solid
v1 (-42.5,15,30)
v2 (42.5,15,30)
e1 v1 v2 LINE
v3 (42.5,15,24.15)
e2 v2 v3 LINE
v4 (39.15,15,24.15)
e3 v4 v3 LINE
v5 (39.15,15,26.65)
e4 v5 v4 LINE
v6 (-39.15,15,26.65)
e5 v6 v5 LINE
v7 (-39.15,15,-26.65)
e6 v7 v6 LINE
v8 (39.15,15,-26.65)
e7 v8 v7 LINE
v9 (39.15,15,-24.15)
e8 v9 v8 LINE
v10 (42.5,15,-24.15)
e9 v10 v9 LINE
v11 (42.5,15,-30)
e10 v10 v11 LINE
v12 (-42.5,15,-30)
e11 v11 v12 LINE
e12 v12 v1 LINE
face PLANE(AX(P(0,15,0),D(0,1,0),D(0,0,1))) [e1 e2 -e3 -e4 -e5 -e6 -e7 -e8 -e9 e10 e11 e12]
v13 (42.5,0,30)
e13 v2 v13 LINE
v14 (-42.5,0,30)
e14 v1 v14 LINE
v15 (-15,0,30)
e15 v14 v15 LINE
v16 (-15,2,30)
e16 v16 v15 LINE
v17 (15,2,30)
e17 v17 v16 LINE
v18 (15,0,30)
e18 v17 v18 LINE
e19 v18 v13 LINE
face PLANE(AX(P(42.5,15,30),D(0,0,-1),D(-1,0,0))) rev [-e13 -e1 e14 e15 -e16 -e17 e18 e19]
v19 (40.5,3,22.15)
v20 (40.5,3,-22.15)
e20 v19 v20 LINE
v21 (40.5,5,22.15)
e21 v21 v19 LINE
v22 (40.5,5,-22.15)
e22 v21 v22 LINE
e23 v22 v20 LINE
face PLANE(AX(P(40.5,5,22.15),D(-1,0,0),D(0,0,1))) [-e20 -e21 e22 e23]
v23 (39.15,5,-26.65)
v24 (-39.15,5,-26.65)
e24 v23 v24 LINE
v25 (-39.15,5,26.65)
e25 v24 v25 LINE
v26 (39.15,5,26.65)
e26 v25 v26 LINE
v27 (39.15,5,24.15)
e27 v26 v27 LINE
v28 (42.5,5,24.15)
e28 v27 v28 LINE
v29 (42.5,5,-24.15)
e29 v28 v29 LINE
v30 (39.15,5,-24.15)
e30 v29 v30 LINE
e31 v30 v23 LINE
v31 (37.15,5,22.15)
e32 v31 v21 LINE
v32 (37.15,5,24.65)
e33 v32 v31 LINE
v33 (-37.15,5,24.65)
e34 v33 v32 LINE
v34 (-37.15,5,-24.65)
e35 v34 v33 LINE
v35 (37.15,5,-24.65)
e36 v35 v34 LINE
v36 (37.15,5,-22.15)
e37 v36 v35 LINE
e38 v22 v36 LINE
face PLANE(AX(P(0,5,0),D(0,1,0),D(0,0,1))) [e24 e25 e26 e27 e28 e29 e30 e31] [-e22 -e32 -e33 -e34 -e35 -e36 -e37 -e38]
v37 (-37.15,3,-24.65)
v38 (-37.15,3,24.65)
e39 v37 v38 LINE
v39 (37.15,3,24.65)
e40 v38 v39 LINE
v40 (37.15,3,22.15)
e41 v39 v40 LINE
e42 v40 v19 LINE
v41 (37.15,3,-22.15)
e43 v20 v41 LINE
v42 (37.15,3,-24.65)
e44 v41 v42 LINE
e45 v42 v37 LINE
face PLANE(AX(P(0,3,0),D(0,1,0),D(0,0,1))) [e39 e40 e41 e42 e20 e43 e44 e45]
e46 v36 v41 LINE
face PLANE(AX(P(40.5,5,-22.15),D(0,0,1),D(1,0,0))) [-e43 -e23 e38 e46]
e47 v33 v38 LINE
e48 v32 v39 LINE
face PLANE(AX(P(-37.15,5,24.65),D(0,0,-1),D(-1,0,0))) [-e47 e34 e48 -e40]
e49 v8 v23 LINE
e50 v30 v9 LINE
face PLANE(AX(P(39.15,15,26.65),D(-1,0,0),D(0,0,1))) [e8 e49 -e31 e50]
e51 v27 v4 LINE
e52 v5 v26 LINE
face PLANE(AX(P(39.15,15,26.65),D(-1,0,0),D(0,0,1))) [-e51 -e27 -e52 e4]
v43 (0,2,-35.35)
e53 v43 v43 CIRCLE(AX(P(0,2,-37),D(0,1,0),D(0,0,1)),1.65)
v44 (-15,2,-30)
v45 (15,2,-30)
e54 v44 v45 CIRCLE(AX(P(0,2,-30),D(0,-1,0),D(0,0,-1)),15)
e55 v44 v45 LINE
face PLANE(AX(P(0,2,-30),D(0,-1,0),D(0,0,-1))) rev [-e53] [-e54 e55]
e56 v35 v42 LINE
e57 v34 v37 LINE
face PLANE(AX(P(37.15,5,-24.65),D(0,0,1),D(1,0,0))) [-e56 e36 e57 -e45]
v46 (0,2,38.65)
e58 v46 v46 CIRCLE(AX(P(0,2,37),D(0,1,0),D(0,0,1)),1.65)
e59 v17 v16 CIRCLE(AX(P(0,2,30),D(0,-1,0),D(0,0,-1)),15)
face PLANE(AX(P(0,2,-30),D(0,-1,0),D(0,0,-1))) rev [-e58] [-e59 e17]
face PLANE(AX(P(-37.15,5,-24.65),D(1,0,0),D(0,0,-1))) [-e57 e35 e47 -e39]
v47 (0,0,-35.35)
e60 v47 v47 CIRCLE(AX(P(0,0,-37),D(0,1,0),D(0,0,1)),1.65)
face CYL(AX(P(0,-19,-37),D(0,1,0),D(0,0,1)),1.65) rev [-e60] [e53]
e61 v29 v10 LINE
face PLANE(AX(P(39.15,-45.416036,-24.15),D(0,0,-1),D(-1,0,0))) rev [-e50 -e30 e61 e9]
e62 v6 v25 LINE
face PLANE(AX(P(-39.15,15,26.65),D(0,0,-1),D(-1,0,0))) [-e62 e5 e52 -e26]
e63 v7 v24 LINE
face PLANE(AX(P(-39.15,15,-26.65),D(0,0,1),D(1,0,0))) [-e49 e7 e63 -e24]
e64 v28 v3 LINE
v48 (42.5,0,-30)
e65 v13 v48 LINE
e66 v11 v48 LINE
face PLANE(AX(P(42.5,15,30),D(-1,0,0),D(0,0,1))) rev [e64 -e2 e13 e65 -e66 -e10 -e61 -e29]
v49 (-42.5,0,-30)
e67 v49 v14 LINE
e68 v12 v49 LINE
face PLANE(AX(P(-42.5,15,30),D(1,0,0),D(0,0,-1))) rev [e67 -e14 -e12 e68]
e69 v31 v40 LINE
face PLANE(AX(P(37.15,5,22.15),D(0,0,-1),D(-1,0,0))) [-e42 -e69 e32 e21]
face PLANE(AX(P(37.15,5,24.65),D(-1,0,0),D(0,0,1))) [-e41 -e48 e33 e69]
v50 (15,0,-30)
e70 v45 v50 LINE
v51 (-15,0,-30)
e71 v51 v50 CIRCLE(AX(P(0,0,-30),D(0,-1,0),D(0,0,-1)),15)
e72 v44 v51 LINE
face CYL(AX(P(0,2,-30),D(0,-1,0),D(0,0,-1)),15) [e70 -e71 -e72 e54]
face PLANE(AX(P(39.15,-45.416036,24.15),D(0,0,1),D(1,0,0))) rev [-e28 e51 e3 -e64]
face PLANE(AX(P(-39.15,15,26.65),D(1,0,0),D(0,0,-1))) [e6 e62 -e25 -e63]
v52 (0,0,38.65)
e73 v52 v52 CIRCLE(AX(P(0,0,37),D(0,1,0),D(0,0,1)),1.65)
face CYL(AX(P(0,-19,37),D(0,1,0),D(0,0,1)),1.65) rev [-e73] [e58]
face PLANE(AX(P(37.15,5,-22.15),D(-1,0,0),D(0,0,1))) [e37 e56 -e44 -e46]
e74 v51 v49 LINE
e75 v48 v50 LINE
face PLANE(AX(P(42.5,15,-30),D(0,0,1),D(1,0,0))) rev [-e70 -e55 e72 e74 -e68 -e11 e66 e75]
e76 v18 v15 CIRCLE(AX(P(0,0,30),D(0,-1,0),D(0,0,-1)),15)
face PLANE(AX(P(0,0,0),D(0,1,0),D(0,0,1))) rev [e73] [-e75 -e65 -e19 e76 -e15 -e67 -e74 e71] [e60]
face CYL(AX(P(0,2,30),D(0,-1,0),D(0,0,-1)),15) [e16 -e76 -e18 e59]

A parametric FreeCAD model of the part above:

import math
import FreeCAD as App
import Part
import Sketcher


def faces_at(feature, points):
    """Names of the faces that lie closest to the given points."""
    faces = feature.Shape.Faces
    near = lambda p: min(range(len(faces)), key=lambda i: faces[i].distToShape(Part.Vertex(*p))[0])
    return sorted({f"Face{near(p) + 1}" for p in points})


def add_polygon(sketch, points):
    """Adds a closed chain of lines whose ends are joined by coincident constraints."""
    first, n = sketch.GeometryCount, len(points)
    for a, b in zip(points, points[1:] + points[:1]):
        sketch.addGeometry(Part.LineSegment(App.Vector(*a, 0), App.Vector(*b, 0)), False)
    for i in range(n):
        sketch.addConstraint(Sketcher.Constraint("Coincident", first + i, 2, first + (i + 1) % n, 1))

doc = App.newDocument("Part")
body = doc.addObject("PartDesign::Body", "Body")

# Sketch on XZ plane
sketch1 = doc.addObject("Sketcher::SketchObject", "Sketch")
body.addObject(sketch1)
sketch1.AttachmentSupport = (doc.XZ_Plane, [""])
sketch1.MapMode = "FlatFace"
add_polygon(sketch1, [(-42, -30), (-42, 30), (42, 30), (42, -30)])  # lines 0-3
sketch1.addConstraint(Sketcher.Constraint("Vertical", 0))
sketch1.addConstraint(Sketcher.Constraint("Horizontal", 1))
sketch1.addConstraint(Sketcher.Constraint("Vertical", 2))
sketch1.addConstraint(Sketcher.Constraint("Horizontal", 3))
sketch1.addConstraint(Sketcher.Constraint("Symmetric", 0, 2, 2, 2, -1, 1))
sketch1.addConstraint(Sketcher.Constraint("DistanceX", 1, 1, 1, 2, 85.0))
sketch1.addConstraint(Sketcher.Constraint("DistanceY", 0, 1, 0, 2, 60.0))
pad1 = doc.addObject("PartDesign::Pad", "Pad")
body.addObject(pad1)
pad1.Profile = sketch1
pad1.Length = 15
pad1.Reversed = True
doc.recompute()

thickness = doc.addObject("PartDesign::Thickness", "Thickness")
body.addObject(thickness)
thickness.Base = (pad1, faces_at(pad1, [(0, 15, 0)]))
thickness.Value = 3
thickness.Reversed = True
thickness.Join = "Intersection"

# Sketch on XZ plane
sketch2 = doc.addObject("Sketcher::SketchObject", "Sketch001")
body.addObject(sketch2)
sketch2.AttachmentSupport = (doc.XZ_Plane, [""])
sketch2.MapMode = "FlatFace"
sketch2.AttachmentOffset = App.Placement(App.Vector(0, 0, -3), App.Rotation())
add_polygon(sketch2, [(-40, -27), (-40, 27), (40, 27), (40, -27)])  # lines 0-3
add_polygon(sketch2, [(39, 27), (-39, 27), (-39, -27), (39, -27)])  # lines 4-7
sketch2.addConstraint(Sketcher.Constraint("Vertical", 0))
sketch2.addConstraint(Sketcher.Constraint("Horizontal", 1))
sketch2.addConstraint(Sketcher.Constraint("Vertical", 2))
sketch2.addConstraint(Sketcher.Constraint("Horizontal", 3))
sketch2.addConstraint(Sketcher.Constraint("Horizontal", 4))
sketch2.addConstraint(Sketcher.Constraint("Vertical", 5))
sketch2.addConstraint(Sketcher.Constraint("Horizontal", 6))
sketch2.addConstraint(Sketcher.Constraint("Vertical", 7))
sketch2.addConstraint(Sketcher.Constraint("Symmetric", 0, 2, 2, 2, -1, 1))
sketch2.addConstraint(Sketcher.Constraint("Symmetric", 4, 2, 6, 2, -1, 1))
sketch2.addConstraint(Sketcher.Constraint("DistanceX", 1, 1, 1, 2, 79.0))
sketch2.addConstraint(Sketcher.Constraint("DistanceY", 0, 1, 0, 2, 54.0))
sketch2.addConstraint(Sketcher.Constraint("DistanceX", 4, 2, 4, 1, 78.3))
sketch2.addConstraint(Sketcher.Constraint("DistanceY", 5, 2, 5, 1, 53.3))
pad2 = doc.addObject("PartDesign::Pad", "Pad001")
body.addObject(pad2)
pad2.Profile = sketch2
pad2.Length = 12
pad2.Reversed = True

# Sketch on XZ plane
sketch3 = doc.addObject("Sketcher::SketchObject", "Sketch002")
body.addObject(sketch3)
sketch3.AttachmentSupport = (doc.XZ_Plane, [""])
sketch3.MapMode = "FlatFace"
sketch3.AttachmentOffset = App.Placement(App.Vector(0, 0, -15), App.Rotation())
add_polygon(sketch3, [(39.1, -24.1), (39.1, 24.1), (42.5, 24.1), (42.5, -24.1)])  # lines 0-3
sketch3.addConstraint(Sketcher.Constraint("Vertical", 0))
sketch3.addConstraint(Sketcher.Constraint("Horizontal", 1))
sketch3.addConstraint(Sketcher.Constraint("Vertical", 2))
sketch3.addConstraint(Sketcher.Constraint("Horizontal", 3))
sketch3.addConstraint(Sketcher.Constraint("DistanceY", 0, 1, 0, 2, 48.3))
sketch3.addConstraint(Sketcher.Constraint("DistanceX", 1, 1, 1, 2, 3.35))
sketch3.addConstraint(Sketcher.Constraint("DistanceX", -1, 1, 1, 2, 42.5))
sketch3.addConstraint(Sketcher.Constraint("DistanceY", -1, 1, 0, 2, 24.15))
pocket1 = doc.addObject("PartDesign::Pocket", "Pocket")
body.addObject(pocket1)
pocket1.Profile = sketch3
pocket1.Length = 12
pocket1.Reversed = True

# Sketch on XZ plane
sketch4 = doc.addObject("Sketcher::SketchObject", "Sketch003")
body.addObject(sketch4)
sketch4.AttachmentSupport = (doc.XZ_Plane, [""])
sketch4.MapMode = "FlatFace"
sketch4.AttachmentOffset = App.Placement(App.Vector(0, 0, -3), App.Rotation())
add_polygon(sketch4, [(39.1, 26.6), (39.1, 24.1), (42.5, 24.1), (42.5, -24.1), (39.1, -24.1), (39.1, -26.6), (-39.1, -26.6), (-39.1, 26.6)])  # lines 0-7
add_polygon(sketch4, [(37.1, 22.1), (37.1, 24.6), (-37.1, 24.6), (-37.1, -24.6), (37.1, -24.6), (37.1, -22.1), (40.5, -22.1), (40.5, 22.1)])  # lines 8-15
sketch4.addConstraint(Sketcher.Constraint("Vertical", 0))
sketch4.addConstraint(Sketcher.Constraint("Horizontal", 1))
sketch4.addConstraint(Sketcher.Constraint("Vertical", 2))
sketch4.addConstraint(Sketcher.Constraint("Horizontal", 3))
sketch4.addConstraint(Sketcher.Constraint("Vertical", 4))
sketch4.addConstraint(Sketcher.Constraint("Horizontal", 5))
sketch4.addConstraint(Sketcher.Constraint("Vertical", 6))
sketch4.addConstraint(Sketcher.Constraint("Horizontal", 7))
sketch4.addConstraint(Sketcher.Constraint("Vertical", 8))
sketch4.addConstraint(Sketcher.Constraint("Horizontal", 9))
sketch4.addConstraint(Sketcher.Constraint("Vertical", 10))
sketch4.addConstraint(Sketcher.Constraint("Horizontal", 11))
sketch4.addConstraint(Sketcher.Constraint("Vertical", 12))
sketch4.addConstraint(Sketcher.Constraint("Horizontal", 13))
sketch4.addConstraint(Sketcher.Constraint("Vertical", 14))
sketch4.addConstraint(Sketcher.Constraint("Horizontal", 15))
sketch4.addConstraint(Sketcher.Constraint("Symmetric", 4, 2, 6, 2, -1, 1))
sketch4.addConstraint(Sketcher.Constraint("Symmetric", 8, 2, 10, 2, -1, 1))
sketch4.addConstraint(Sketcher.Constraint("Symmetric", 0, 2, 3, 2, -1))
sketch4.addConstraint(Sketcher.Constraint("Symmetric", 12, 2, 15, 2, -1))
sketch4.addConstraint(Sketcher.Constraint("Equal", 3, 13))
sketch4.addConstraint(Sketcher.Constraint("Equal", 4, 8))
sketch4.addConstraint(Sketcher.Constraint("DistanceX", 5, 2, 5, 1, 78.3))
sketch4.addConstraint(Sketcher.Constraint("DistanceX", 9, 2, 9, 1, 74.3))
sketch4.addConstraint(Sketcher.Constraint("DistanceY", 0, 2, 0, 1, 2.5))
sketch4.addConstraint(Sketcher.Constraint("DistanceY", 2, 2, 2, 1, 48.3))
sketch4.addConstraint(Sketcher.Constraint("DistanceY", 10, 2, 10, 1, 49.3))
sketch4.addConstraint(Sketcher.Constraint("DistanceX", 1, 1, 1, 2, 3.35))
pad3 = doc.addObject("PartDesign::Pad", "Pad002")
body.addObject(pad3)
pad3.Profile = sketch4
pad3.Length = 2
pad3.Reversed = True

# Sketch on XZ plane
sketch5 = doc.addObject("Sketcher::SketchObject", "Sketch004")
body.addObject(sketch5)
sketch5.AttachmentSupport = (doc.XZ_Plane, [""])
sketch5.MapMode = "FlatFace"
sketch5.addGeometry(Part.LineSegment(App.Vector(-15, 30, 0), App.Vector(-15, -30, 0)), False)
sketch5.addGeometry(Part.ArcOfCircle(Part.Circle(App.Vector(0, -30, 0), App.Vector(0, 0, 1), 15), math.radians(180), math.radians(360)), False)
sketch5.addGeometry(Part.LineSegment(App.Vector(15, -30, 0), App.Vector(15, 30, 0)), False)
sketch5.addGeometry(Part.ArcOfCircle(Part.Circle(App.Vector(0, 30, 0), App.Vector(0, 0, 1), 15), math.radians(0), math.radians(180)), False)
sketch5.addConstraint(Sketcher.Constraint("Tangent", 0, 2, 1, 1))
sketch5.addConstraint(Sketcher.Constraint("Tangent", 1, 2, 2, 1))
sketch5.addConstraint(Sketcher.Constraint("Tangent", 2, 2, 3, 1))
sketch5.addConstraint(Sketcher.Constraint("Tangent", 3, 2, 0, 1))
sketch5.addConstraint(Sketcher.Constraint("Vertical", 0))
sketch5.addConstraint(Sketcher.Constraint("Vertical", 2))
sketch5.addConstraint(Sketcher.Constraint("Symmetric", 1, 3, 3, 3, -1, 1))
sketch5.addConstraint(Sketcher.Constraint("Radius", 1, 15.0))
sketch5.addConstraint(Sketcher.Constraint("DistanceY", 0, 2, 0, 1, 60.0))
pad4 = doc.addObject("PartDesign::Pad", "Pad003")
body.addObject(pad4)
pad4.Profile = sketch5
pad4.Length = 2
pad4.Reversed = True

# Sketch on XZ plane
sketch6 = doc.addObject("Sketcher::SketchObject", "Sketch005")
body.addObject(sketch6)
sketch6.AttachmentSupport = (doc.XZ_Plane, [""])
sketch6.MapMode = "FlatFace"
sketch6.AttachmentOffset = App.Placement(App.Vector(0, 0, -2), App.Rotation())
sketch6.addGeometry(Part.Circle(App.Vector(0, -37, 0), App.Vector(0, 0, 1), 1.6), False)
sketch6.addGeometry(Part.Circle(App.Vector(0, 37, 0), App.Vector(0, 0, 1), 1.6), False)
sketch6.addConstraint(Sketcher.Constraint("Equal", 0, 1))
sketch6.addConstraint(Sketcher.Constraint("Symmetric", 0, 3, 1, 3, -1, 1))
sketch6.addConstraint(Sketcher.Constraint("PointOnObject", 0, 3, -2))
sketch6.addConstraint(Sketcher.Constraint("Diameter", 0, 3.3))
sketch6.addConstraint(Sketcher.Constraint("DistanceY", 0, 3, -1, 1, 37.0))
pocket2 = doc.addObject("PartDesign::Pocket", "Pocket001")
body.addObject(pocket2)
pocket2.Profile = sketch6
pocket2.Length = 21
pocket2.Reversed = True

doc.recompute()
